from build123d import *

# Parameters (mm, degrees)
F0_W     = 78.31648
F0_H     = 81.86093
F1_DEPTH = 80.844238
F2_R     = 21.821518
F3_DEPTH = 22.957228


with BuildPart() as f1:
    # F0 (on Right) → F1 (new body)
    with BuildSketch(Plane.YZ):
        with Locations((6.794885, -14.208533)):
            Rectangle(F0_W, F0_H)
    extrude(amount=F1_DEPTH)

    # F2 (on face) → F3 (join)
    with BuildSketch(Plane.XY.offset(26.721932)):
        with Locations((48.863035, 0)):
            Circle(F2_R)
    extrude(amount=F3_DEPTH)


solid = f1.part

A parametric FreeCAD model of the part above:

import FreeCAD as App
import Part
import Sketcher
Q = App.Units.Quantity


def add_polygon(sketch, points):
    """Adds a closed chain of lines whose ends are joined by coincident constraints."""
    first, n = sketch.GeometryCount, len(points)
    for a, b in zip(points, points[1:] + points[:1]):
        sketch.addGeometry(Part.LineSegment(App.Vector(*a, 0), App.Vector(*b, 0)), False)
    for i in range(n):
        sketch.addConstraint(Sketcher.Constraint("Coincident", first + i, 2, first + (i + 1) % n, 1))

doc = App.newDocument("Part")
body = doc.addObject("PartDesign::Body", "Body")

sketch1 = body.newObject("Sketcher::SketchObject", "Sketch")
sketch1.AttachmentSupport = (doc.getObject("YZ_Plane"), [""])
sketch1.MapMode = "FlatFace"
add_polygon(sketch1, [(-32, 27), (-32, -55), (46, -55), (46, 27)])
sketch1.addConstraint(Sketcher.Constraint("Vertical", 0))
sketch1.addConstraint(Sketcher.Constraint("Horizontal", 1))
sketch1.addConstraint(Sketcher.Constraint("Vertical", 2))
sketch1.addConstraint(Sketcher.Constraint("Horizontal", 3))
sketch1.addConstraint(Sketcher.Constraint("DistanceX", 1, 1, 1, 2, Q("78.31648 mm")))
sketch1.addConstraint(Sketcher.Constraint("DistanceY", 0, 2, 0, 1, Q("81.86093 mm")))
sketch1.addConstraint(Sketcher.Constraint("DistanceY", -1, 1, 2, 2, Q("26.721932 mm")))
sketch1.addConstraint(Sketcher.Constraint("DistanceX", 0, 2, -1, 1, Q("32.363355 mm")))
pad1 = body.newObject("PartDesign::Pad", "Pad")
pad1.Profile = sketch1
pad1.Length = 80.844238

sketch2 = body.newObject("Sketcher::SketchObject", "Sketch001")
sketch2.AttachmentSupport = (doc.getObject("XY_Plane"), [""])
sketch2.MapMode = "FlatFace"
sketch2.AttachmentOffset = App.Placement(App.Vector(0, 0, 26.721932), App.Rotation())
sketch2.addGeometry(Part.Circle(App.Vector(49, 0, 0), App.Vector(0, 0, 1), 22), False)
sketch2.addConstraint(Sketcher.Constraint("PointOnObject", 0, 3, -1))
sketch2.addConstraint(Sketcher.Constraint("Diameter", 0, Q("43.643036 mm")))
sketch2.addConstraint(Sketcher.Constraint("DistanceX", -1, 1, 0, 3, Q("48.863035 mm")))
pad2 = body.newObject("PartDesign::Pad", "Pad001")
pad2.Profile = sketch2
pad2.Length = 22.957228

doc.recompute()
